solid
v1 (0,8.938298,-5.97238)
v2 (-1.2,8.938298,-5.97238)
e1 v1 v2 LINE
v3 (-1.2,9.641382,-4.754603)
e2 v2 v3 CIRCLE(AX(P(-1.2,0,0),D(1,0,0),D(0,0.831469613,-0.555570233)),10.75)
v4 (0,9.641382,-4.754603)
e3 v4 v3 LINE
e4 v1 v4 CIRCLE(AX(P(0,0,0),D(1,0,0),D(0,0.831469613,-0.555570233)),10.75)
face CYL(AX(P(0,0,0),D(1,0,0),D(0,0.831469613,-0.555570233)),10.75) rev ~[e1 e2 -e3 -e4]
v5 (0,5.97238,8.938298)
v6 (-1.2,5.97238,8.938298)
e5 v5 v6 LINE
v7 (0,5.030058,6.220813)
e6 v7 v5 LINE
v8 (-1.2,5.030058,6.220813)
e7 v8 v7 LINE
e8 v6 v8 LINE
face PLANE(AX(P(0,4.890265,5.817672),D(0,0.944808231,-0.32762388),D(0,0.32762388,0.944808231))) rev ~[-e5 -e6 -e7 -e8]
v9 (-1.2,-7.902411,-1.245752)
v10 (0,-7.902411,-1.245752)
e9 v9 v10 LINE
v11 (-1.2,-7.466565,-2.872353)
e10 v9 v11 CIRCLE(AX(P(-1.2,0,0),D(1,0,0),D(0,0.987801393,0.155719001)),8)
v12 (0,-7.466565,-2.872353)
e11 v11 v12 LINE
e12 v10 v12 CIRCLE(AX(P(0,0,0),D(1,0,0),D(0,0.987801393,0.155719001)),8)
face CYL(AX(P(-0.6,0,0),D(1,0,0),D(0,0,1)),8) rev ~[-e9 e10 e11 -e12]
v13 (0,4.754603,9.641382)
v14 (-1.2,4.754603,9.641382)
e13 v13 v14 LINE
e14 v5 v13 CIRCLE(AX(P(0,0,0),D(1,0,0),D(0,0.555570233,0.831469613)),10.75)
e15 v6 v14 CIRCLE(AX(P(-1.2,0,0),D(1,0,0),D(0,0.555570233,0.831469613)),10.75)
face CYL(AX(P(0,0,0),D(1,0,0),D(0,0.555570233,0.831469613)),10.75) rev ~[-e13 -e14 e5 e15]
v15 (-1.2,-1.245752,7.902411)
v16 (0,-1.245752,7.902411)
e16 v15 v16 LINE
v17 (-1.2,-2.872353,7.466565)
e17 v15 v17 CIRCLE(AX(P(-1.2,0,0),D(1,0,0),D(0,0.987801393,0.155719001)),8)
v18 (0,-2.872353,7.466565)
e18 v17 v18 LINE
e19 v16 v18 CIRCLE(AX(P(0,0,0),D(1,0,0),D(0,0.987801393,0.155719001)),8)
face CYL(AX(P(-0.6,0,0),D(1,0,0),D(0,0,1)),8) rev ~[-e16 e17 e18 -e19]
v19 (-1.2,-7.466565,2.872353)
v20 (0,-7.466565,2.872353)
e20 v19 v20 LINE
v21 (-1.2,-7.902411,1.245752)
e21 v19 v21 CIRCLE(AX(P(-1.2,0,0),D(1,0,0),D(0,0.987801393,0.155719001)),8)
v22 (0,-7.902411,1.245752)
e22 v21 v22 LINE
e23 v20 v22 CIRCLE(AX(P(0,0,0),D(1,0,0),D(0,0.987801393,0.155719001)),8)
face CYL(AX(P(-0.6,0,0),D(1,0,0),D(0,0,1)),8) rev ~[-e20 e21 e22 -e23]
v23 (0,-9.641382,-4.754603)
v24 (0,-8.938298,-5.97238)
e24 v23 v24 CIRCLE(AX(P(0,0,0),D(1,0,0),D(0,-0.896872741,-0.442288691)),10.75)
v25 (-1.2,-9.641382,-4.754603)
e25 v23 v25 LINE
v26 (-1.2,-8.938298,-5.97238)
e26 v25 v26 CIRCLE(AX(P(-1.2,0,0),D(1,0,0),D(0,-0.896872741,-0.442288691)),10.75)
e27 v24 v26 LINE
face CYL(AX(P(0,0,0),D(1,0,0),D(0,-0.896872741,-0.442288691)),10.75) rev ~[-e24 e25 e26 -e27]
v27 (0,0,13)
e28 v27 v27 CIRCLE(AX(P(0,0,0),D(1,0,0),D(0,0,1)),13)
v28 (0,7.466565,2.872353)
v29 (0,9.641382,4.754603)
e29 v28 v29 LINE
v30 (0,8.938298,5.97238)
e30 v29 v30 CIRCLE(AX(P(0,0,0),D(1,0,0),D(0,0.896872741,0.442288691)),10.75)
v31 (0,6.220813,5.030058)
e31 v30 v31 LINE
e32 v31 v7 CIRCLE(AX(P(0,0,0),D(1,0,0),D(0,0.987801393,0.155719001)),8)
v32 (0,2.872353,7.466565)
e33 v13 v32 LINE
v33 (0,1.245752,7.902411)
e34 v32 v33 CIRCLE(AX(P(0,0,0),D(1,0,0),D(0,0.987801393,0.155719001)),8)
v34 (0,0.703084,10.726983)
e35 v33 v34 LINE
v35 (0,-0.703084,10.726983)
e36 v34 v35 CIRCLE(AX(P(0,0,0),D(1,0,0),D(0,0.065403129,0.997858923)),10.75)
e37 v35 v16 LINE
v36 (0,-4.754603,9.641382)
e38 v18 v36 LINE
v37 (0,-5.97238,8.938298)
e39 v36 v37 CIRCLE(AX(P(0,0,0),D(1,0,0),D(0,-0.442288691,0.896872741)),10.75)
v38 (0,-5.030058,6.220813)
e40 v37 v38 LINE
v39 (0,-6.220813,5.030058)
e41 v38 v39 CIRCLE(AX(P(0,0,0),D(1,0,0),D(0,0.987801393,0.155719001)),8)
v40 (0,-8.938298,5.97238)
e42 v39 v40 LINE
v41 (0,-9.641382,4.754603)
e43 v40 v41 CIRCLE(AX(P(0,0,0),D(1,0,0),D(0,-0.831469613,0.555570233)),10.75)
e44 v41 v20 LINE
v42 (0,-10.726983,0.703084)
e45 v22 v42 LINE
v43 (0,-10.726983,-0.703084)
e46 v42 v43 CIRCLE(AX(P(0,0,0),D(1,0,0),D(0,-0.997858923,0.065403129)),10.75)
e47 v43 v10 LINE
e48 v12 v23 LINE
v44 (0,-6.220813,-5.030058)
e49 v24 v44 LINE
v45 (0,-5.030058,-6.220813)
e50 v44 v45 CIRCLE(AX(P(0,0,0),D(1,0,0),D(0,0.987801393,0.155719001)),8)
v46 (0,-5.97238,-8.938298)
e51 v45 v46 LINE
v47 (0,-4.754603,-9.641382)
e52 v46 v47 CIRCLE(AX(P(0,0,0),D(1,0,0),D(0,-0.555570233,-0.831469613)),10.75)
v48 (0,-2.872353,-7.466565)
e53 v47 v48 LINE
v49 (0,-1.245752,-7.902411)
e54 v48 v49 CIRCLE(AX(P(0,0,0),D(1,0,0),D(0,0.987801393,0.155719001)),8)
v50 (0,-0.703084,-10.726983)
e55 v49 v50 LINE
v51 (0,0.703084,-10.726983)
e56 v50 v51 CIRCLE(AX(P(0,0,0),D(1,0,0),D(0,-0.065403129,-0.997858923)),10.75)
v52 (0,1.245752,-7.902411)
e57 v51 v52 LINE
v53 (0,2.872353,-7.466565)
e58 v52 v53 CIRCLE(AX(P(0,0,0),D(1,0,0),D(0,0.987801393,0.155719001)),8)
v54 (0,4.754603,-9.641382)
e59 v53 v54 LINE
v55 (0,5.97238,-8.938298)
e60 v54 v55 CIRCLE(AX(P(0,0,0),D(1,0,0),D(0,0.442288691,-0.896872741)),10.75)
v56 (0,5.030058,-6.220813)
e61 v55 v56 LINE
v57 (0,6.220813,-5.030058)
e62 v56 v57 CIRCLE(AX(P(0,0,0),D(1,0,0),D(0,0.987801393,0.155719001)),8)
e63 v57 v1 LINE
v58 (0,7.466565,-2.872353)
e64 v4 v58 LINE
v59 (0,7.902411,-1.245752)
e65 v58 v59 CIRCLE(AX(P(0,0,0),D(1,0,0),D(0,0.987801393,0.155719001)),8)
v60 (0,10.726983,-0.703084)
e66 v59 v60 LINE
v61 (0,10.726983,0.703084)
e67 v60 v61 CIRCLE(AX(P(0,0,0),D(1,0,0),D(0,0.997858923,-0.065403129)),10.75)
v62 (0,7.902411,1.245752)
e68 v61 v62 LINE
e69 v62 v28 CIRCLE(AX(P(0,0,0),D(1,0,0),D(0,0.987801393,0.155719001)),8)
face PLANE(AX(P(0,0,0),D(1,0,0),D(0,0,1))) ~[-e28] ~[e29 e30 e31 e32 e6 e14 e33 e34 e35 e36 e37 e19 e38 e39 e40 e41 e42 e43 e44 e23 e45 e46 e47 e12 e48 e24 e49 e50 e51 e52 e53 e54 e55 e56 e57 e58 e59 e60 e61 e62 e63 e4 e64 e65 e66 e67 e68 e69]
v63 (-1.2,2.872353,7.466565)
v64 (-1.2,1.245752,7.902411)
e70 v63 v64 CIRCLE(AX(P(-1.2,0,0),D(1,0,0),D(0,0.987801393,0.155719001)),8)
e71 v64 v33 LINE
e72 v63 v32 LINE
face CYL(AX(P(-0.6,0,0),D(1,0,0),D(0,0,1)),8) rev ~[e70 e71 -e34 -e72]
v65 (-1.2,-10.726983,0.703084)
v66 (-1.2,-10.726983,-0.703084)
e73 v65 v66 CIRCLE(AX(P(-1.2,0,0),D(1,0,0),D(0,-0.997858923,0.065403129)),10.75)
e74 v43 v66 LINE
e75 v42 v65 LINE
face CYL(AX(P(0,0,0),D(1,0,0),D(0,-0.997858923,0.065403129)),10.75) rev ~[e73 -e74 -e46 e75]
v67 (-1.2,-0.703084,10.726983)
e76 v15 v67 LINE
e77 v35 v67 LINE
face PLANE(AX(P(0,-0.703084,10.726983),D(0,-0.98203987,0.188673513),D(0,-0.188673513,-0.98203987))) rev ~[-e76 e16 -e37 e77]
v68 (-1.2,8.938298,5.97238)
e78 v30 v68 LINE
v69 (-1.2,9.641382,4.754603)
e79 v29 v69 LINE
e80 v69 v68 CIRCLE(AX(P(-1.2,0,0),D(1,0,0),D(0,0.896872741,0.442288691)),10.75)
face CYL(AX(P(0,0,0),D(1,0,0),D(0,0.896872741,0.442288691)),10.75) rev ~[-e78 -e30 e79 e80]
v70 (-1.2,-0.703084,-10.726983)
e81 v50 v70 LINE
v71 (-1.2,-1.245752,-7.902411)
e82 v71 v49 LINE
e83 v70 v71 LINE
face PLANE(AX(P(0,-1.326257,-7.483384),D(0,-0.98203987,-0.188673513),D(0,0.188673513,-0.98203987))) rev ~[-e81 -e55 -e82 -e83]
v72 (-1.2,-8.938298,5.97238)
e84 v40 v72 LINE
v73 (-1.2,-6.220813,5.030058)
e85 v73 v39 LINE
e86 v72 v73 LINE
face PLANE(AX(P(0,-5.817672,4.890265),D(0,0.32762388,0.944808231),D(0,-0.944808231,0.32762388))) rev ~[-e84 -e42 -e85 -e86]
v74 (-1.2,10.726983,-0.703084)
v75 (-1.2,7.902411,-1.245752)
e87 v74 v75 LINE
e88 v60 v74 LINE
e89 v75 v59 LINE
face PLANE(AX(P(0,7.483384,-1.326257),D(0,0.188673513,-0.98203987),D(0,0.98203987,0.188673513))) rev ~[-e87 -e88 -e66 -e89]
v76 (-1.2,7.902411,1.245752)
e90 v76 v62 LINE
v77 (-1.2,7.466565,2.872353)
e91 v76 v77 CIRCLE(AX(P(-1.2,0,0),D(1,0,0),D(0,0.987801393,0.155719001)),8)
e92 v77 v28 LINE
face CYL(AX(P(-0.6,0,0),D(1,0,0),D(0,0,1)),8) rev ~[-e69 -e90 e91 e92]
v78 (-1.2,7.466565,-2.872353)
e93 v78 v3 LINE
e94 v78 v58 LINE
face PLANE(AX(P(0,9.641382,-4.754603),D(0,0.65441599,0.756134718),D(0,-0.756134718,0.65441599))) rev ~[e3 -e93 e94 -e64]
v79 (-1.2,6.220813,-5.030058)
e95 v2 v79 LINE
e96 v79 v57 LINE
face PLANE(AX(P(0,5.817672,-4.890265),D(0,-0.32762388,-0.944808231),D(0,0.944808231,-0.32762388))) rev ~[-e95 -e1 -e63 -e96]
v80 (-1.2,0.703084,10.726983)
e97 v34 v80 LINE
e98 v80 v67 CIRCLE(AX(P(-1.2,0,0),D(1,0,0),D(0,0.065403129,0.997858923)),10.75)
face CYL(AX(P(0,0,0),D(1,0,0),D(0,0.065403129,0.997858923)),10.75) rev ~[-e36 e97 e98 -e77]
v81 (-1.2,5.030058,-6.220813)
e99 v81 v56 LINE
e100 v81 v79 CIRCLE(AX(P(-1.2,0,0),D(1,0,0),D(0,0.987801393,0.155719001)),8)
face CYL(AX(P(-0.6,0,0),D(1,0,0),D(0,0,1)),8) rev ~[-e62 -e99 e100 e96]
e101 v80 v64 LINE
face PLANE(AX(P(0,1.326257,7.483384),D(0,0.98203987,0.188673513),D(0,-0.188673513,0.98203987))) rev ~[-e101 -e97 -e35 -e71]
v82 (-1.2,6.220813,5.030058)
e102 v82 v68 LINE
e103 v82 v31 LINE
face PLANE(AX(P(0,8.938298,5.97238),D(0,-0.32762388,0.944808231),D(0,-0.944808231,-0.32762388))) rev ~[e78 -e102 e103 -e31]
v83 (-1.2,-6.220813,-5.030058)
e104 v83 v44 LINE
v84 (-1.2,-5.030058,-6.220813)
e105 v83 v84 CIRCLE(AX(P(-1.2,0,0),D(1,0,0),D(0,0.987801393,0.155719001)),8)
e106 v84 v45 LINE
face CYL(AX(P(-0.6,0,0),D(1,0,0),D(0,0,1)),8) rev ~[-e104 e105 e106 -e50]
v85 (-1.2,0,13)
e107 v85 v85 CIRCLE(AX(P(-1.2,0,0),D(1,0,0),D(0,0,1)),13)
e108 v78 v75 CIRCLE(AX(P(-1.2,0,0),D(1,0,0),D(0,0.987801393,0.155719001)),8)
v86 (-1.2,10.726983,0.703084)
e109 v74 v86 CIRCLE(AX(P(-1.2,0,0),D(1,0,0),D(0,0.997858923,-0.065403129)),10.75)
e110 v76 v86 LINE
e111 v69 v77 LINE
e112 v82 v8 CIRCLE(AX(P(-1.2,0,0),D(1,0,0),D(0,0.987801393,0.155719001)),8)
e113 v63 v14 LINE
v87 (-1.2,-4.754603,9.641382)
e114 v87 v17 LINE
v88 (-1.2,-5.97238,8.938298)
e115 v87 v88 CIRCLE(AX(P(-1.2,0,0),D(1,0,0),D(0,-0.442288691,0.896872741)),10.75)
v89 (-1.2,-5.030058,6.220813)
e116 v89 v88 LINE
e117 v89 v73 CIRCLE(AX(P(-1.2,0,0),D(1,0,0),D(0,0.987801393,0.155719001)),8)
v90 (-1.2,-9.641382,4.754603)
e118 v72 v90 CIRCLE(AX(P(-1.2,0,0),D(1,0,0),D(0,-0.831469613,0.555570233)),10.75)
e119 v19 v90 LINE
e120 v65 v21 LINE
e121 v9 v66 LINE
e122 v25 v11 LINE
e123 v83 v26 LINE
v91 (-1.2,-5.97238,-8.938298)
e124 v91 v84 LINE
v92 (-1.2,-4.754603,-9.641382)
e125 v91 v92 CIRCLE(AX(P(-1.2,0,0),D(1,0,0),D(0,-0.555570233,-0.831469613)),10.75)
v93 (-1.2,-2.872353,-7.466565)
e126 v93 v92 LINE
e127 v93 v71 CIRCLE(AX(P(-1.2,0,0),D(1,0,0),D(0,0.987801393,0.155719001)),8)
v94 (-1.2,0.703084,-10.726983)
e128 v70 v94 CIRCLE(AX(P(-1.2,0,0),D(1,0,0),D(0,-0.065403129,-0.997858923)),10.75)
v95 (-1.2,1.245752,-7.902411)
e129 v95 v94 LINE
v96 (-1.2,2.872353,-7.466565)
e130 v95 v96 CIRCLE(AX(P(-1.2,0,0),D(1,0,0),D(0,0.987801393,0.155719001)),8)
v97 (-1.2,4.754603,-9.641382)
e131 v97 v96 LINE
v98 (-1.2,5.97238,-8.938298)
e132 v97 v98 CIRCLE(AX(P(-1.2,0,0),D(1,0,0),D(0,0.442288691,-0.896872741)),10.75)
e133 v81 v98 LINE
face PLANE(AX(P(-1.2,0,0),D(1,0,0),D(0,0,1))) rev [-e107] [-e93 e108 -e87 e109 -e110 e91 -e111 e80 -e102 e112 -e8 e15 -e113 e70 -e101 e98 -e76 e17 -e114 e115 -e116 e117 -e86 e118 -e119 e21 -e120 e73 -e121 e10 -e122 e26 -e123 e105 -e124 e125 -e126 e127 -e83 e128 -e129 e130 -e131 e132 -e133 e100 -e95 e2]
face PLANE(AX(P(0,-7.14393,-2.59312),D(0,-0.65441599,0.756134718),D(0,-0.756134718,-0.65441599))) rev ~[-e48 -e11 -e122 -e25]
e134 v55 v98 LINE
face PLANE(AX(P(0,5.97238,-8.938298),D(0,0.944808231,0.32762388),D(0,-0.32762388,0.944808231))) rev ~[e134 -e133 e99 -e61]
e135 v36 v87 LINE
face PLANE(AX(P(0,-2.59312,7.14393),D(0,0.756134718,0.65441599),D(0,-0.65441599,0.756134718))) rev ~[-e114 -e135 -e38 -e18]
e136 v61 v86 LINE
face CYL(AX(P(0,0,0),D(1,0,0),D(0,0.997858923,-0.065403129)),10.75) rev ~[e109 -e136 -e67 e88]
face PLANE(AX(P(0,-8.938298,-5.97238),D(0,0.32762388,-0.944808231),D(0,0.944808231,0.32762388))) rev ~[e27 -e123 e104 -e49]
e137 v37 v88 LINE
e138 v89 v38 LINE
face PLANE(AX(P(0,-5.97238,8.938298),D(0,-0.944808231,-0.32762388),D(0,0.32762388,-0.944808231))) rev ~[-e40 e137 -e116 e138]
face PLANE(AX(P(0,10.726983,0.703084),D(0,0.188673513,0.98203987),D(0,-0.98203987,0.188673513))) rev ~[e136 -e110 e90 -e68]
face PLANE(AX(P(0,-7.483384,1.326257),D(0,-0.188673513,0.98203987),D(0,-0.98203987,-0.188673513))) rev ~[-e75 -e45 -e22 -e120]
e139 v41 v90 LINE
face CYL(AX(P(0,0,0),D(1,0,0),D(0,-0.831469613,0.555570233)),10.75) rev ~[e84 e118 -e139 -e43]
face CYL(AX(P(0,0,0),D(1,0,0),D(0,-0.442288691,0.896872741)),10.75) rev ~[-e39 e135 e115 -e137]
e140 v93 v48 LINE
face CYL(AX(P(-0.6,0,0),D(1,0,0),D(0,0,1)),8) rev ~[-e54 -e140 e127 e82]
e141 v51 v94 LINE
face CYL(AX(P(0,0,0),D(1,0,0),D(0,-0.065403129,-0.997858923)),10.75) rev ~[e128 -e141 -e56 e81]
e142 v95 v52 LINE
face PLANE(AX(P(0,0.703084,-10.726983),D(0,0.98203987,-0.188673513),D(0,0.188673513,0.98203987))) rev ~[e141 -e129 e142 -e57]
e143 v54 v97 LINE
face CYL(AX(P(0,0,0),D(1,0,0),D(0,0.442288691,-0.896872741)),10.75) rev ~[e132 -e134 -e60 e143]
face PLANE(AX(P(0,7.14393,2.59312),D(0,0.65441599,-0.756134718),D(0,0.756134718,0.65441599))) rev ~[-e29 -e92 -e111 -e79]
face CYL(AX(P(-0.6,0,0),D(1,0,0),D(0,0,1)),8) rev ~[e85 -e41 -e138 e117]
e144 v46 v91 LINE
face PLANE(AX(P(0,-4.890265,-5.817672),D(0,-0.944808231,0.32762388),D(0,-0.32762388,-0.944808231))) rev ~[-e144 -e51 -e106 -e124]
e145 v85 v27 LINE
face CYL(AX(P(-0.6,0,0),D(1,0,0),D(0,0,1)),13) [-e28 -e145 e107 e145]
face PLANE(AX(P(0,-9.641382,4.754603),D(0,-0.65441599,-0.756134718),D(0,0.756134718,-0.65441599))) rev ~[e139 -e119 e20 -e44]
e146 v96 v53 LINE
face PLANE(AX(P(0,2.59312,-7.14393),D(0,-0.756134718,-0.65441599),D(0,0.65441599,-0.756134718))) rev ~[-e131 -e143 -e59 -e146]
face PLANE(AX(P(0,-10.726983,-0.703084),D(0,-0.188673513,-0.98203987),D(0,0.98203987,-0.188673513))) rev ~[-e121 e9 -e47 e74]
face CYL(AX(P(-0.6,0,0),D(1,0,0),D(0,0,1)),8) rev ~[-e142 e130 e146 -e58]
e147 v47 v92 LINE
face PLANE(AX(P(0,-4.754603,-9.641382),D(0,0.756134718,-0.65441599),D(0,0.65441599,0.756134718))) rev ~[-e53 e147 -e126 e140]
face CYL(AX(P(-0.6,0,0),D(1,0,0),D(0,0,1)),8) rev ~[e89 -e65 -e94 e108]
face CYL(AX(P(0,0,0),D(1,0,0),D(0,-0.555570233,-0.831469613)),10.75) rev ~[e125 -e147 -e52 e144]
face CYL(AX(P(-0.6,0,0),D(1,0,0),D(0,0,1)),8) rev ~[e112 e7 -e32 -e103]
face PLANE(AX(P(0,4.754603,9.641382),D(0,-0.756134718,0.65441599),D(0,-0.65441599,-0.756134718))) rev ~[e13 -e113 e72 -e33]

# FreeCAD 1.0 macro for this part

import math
import FreeCAD as App
import Part
import Sketcher

V = App.Vector


def add_polygon(sketch, points):
    """Adds a closed chain of lines whose ends are joined by coincident constraints."""
    first, n = sketch.GeometryCount, len(points)
    for a, b in zip(points, points[1:] + points[:1]):
        sketch.addGeometry(Part.LineSegment(App.Vector(*a, 0), App.Vector(*b, 0)), False)
    for i in range(n):
        sketch.addConstraint(Sketcher.Constraint("Coincident", first + i, 2, first + (i + 1) % n, 1))

doc = App.newDocument("Part")
body = doc.addObject("PartDesign::Body", "Body")

# Sketch on XY plane
sketch1 = body.newObject("Sketcher::SketchObject", "Sketch")
sketch1.AttachmentSupport = (doc.getObject("XY_Plane"), [""])
sketch1.MapMode = "FlatFace"
add_polygon(sketch1, [(-1.2, 13), (-1.2, 8), (0, 8), (0, 13)])  # lines 0-3
sketch1.addConstraint([
    Sketcher.Constraint("Vertical", 0),
    Sketcher.Constraint("Horizontal", 1),
    Sketcher.Constraint("Vertical", 2),
    Sketcher.Constraint("Horizontal", 3),
    Sketcher.Constraint("PointOnObject", 1, 2, -2),
    Sketcher.Constraint("DistanceY", 0, 2, 0, 1, 5.0),
    Sketcher.Constraint("DistanceX", 1, 1, 1, 2, 1.2),
    Sketcher.Constraint("DistanceY", -1, 1, 0, 2, 8.0),
])
revolution = body.newObject("PartDesign::Revolution", "Revolution")
revolution.Profile = sketch1
revolution.ReferenceAxis = (sketch1, ["H_Axis"])
revolution.Angle = 360

# Sketch on YZ plane
sketch2 = body.newObject("Sketcher::SketchObject", "Sketch001")
sketch2.AttachmentSupport = (doc.getObject("YZ_Plane"), [""])
sketch2.MapMode = "FlatFace"
sketch2.addGeometry([
    Part.LineSegment(V(10.7, 0.7, 0), V(7.5, 1.3, 0)),
    Part.ArcOfCircle(Part.Circle(V(0, 0, 0), V(0, 0, 1), 7.6), math.radians(-10), math.radians(10)),
    Part.LineSegment(V(7.5, -1.3, 0), V(10.7, -0.7, 0)),
    Part.ArcOfCircle(Part.Circle(V(0, 0, 0), V(0, 0, 1), 10.8), math.radians(-3.75), math.radians(3.75)),
], False)
sketch2.addConstraint([
    Sketcher.Constraint("Coincident", 0, 2, 1, 2),
    Sketcher.Constraint("Coincident", 1, 1, 2, 1),
    Sketcher.Constraint("Coincident", 2, 2, 3, 1),
    Sketcher.Constraint("Coincident", 3, 2, 0, 1),
    Sketcher.Constraint("Coincident", 1, 3, -1, 1),
    Sketcher.Constraint("Coincident", 3, 3, -1, 1),
    Sketcher.Constraint("Vertical", 0, 2, 1, 1),
    Sketcher.Constraint("Vertical", 2, 2, 3, 2),
    Sketcher.Constraint("Radius", 1, 7.6),
    Sketcher.Constraint("Radius", 3, 10.75),
    Sketcher.Constraint("DistanceX", 1, 1, 2, 2, 3.243599),
    Sketcher.Constraint("Distance", 0, 3.30292),
])
pocket1 = body.newObject("PartDesign::Pocket", "Pocket")
pocket1.Profile = sketch2
pocket1.Type = "ThroughAll"
doc.recompute()

polarpattern = body.newObject("PartDesign::PolarPattern", "PolarPattern")
polarpattern.Originals = [pocket1]
polarpattern.Axis = (doc.getObject("X_Axis"), [""])
polarpattern.Angle = 360
polarpattern.Occurrences = 12
body.Tip = polarpattern

doc.recompute()
